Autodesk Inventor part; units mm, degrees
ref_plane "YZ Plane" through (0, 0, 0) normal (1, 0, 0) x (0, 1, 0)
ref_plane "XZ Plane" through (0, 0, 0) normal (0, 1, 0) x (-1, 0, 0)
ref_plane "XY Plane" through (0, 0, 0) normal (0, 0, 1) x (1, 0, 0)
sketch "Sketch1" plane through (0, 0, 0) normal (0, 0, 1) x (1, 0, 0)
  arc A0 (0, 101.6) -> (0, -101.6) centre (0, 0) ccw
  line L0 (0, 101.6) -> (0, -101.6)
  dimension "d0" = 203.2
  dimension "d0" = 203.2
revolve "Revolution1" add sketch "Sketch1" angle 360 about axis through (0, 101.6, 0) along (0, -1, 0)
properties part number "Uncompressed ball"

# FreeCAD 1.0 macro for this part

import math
import FreeCAD as App
import Part
import Sketcher
Q = App.Units.Quantity

doc = App.newDocument("Part")
body = doc.addObject("PartDesign::Body", "Body")

# Sketch on XY plane
sketch1 = body.newObject("Sketcher::SketchObject", "Sketch")
sketch1.AttachmentSupport = (doc.getObject("XY_Plane"), [""])
sketch1.MapMode = "FlatFace"
sketch1.addGeometry(Part.LineSegment(App.Vector(0, -102, 0), App.Vector(0, 102, 0)), False)
sketch1.addGeometry(Part.ArcOfCircle(Part.Circle(App.Vector(0, 0, 0), App.Vector(0, 0, 1), 102), math.radians(90), math.radians(270)), False)
sketch1.addConstraint(Sketcher.Constraint("Coincident", 0, 1, 1, 2))
sketch1.addConstraint(Sketcher.Constraint("Coincident", 1, 1, 0, 2))
sketch1.addConstraint(Sketcher.Constraint("Vertical", 0))
sketch1.addConstraint(Sketcher.Constraint("Coincident", 1, 3, -1, 1))
sketch1.addConstraint(Sketcher.Constraint("PointOnObject", 0, 1, -2))
sketch1.addConstraint(Sketcher.Constraint("Radius", 1, Q("4 in")))
revolution = body.newObject("PartDesign::Revolution", "Revolution")
revolution.Profile = sketch1
revolution.ReferenceAxis = (sketch1, ["V_Axis"])
revolution.Angle = 360

doc.recompute()
